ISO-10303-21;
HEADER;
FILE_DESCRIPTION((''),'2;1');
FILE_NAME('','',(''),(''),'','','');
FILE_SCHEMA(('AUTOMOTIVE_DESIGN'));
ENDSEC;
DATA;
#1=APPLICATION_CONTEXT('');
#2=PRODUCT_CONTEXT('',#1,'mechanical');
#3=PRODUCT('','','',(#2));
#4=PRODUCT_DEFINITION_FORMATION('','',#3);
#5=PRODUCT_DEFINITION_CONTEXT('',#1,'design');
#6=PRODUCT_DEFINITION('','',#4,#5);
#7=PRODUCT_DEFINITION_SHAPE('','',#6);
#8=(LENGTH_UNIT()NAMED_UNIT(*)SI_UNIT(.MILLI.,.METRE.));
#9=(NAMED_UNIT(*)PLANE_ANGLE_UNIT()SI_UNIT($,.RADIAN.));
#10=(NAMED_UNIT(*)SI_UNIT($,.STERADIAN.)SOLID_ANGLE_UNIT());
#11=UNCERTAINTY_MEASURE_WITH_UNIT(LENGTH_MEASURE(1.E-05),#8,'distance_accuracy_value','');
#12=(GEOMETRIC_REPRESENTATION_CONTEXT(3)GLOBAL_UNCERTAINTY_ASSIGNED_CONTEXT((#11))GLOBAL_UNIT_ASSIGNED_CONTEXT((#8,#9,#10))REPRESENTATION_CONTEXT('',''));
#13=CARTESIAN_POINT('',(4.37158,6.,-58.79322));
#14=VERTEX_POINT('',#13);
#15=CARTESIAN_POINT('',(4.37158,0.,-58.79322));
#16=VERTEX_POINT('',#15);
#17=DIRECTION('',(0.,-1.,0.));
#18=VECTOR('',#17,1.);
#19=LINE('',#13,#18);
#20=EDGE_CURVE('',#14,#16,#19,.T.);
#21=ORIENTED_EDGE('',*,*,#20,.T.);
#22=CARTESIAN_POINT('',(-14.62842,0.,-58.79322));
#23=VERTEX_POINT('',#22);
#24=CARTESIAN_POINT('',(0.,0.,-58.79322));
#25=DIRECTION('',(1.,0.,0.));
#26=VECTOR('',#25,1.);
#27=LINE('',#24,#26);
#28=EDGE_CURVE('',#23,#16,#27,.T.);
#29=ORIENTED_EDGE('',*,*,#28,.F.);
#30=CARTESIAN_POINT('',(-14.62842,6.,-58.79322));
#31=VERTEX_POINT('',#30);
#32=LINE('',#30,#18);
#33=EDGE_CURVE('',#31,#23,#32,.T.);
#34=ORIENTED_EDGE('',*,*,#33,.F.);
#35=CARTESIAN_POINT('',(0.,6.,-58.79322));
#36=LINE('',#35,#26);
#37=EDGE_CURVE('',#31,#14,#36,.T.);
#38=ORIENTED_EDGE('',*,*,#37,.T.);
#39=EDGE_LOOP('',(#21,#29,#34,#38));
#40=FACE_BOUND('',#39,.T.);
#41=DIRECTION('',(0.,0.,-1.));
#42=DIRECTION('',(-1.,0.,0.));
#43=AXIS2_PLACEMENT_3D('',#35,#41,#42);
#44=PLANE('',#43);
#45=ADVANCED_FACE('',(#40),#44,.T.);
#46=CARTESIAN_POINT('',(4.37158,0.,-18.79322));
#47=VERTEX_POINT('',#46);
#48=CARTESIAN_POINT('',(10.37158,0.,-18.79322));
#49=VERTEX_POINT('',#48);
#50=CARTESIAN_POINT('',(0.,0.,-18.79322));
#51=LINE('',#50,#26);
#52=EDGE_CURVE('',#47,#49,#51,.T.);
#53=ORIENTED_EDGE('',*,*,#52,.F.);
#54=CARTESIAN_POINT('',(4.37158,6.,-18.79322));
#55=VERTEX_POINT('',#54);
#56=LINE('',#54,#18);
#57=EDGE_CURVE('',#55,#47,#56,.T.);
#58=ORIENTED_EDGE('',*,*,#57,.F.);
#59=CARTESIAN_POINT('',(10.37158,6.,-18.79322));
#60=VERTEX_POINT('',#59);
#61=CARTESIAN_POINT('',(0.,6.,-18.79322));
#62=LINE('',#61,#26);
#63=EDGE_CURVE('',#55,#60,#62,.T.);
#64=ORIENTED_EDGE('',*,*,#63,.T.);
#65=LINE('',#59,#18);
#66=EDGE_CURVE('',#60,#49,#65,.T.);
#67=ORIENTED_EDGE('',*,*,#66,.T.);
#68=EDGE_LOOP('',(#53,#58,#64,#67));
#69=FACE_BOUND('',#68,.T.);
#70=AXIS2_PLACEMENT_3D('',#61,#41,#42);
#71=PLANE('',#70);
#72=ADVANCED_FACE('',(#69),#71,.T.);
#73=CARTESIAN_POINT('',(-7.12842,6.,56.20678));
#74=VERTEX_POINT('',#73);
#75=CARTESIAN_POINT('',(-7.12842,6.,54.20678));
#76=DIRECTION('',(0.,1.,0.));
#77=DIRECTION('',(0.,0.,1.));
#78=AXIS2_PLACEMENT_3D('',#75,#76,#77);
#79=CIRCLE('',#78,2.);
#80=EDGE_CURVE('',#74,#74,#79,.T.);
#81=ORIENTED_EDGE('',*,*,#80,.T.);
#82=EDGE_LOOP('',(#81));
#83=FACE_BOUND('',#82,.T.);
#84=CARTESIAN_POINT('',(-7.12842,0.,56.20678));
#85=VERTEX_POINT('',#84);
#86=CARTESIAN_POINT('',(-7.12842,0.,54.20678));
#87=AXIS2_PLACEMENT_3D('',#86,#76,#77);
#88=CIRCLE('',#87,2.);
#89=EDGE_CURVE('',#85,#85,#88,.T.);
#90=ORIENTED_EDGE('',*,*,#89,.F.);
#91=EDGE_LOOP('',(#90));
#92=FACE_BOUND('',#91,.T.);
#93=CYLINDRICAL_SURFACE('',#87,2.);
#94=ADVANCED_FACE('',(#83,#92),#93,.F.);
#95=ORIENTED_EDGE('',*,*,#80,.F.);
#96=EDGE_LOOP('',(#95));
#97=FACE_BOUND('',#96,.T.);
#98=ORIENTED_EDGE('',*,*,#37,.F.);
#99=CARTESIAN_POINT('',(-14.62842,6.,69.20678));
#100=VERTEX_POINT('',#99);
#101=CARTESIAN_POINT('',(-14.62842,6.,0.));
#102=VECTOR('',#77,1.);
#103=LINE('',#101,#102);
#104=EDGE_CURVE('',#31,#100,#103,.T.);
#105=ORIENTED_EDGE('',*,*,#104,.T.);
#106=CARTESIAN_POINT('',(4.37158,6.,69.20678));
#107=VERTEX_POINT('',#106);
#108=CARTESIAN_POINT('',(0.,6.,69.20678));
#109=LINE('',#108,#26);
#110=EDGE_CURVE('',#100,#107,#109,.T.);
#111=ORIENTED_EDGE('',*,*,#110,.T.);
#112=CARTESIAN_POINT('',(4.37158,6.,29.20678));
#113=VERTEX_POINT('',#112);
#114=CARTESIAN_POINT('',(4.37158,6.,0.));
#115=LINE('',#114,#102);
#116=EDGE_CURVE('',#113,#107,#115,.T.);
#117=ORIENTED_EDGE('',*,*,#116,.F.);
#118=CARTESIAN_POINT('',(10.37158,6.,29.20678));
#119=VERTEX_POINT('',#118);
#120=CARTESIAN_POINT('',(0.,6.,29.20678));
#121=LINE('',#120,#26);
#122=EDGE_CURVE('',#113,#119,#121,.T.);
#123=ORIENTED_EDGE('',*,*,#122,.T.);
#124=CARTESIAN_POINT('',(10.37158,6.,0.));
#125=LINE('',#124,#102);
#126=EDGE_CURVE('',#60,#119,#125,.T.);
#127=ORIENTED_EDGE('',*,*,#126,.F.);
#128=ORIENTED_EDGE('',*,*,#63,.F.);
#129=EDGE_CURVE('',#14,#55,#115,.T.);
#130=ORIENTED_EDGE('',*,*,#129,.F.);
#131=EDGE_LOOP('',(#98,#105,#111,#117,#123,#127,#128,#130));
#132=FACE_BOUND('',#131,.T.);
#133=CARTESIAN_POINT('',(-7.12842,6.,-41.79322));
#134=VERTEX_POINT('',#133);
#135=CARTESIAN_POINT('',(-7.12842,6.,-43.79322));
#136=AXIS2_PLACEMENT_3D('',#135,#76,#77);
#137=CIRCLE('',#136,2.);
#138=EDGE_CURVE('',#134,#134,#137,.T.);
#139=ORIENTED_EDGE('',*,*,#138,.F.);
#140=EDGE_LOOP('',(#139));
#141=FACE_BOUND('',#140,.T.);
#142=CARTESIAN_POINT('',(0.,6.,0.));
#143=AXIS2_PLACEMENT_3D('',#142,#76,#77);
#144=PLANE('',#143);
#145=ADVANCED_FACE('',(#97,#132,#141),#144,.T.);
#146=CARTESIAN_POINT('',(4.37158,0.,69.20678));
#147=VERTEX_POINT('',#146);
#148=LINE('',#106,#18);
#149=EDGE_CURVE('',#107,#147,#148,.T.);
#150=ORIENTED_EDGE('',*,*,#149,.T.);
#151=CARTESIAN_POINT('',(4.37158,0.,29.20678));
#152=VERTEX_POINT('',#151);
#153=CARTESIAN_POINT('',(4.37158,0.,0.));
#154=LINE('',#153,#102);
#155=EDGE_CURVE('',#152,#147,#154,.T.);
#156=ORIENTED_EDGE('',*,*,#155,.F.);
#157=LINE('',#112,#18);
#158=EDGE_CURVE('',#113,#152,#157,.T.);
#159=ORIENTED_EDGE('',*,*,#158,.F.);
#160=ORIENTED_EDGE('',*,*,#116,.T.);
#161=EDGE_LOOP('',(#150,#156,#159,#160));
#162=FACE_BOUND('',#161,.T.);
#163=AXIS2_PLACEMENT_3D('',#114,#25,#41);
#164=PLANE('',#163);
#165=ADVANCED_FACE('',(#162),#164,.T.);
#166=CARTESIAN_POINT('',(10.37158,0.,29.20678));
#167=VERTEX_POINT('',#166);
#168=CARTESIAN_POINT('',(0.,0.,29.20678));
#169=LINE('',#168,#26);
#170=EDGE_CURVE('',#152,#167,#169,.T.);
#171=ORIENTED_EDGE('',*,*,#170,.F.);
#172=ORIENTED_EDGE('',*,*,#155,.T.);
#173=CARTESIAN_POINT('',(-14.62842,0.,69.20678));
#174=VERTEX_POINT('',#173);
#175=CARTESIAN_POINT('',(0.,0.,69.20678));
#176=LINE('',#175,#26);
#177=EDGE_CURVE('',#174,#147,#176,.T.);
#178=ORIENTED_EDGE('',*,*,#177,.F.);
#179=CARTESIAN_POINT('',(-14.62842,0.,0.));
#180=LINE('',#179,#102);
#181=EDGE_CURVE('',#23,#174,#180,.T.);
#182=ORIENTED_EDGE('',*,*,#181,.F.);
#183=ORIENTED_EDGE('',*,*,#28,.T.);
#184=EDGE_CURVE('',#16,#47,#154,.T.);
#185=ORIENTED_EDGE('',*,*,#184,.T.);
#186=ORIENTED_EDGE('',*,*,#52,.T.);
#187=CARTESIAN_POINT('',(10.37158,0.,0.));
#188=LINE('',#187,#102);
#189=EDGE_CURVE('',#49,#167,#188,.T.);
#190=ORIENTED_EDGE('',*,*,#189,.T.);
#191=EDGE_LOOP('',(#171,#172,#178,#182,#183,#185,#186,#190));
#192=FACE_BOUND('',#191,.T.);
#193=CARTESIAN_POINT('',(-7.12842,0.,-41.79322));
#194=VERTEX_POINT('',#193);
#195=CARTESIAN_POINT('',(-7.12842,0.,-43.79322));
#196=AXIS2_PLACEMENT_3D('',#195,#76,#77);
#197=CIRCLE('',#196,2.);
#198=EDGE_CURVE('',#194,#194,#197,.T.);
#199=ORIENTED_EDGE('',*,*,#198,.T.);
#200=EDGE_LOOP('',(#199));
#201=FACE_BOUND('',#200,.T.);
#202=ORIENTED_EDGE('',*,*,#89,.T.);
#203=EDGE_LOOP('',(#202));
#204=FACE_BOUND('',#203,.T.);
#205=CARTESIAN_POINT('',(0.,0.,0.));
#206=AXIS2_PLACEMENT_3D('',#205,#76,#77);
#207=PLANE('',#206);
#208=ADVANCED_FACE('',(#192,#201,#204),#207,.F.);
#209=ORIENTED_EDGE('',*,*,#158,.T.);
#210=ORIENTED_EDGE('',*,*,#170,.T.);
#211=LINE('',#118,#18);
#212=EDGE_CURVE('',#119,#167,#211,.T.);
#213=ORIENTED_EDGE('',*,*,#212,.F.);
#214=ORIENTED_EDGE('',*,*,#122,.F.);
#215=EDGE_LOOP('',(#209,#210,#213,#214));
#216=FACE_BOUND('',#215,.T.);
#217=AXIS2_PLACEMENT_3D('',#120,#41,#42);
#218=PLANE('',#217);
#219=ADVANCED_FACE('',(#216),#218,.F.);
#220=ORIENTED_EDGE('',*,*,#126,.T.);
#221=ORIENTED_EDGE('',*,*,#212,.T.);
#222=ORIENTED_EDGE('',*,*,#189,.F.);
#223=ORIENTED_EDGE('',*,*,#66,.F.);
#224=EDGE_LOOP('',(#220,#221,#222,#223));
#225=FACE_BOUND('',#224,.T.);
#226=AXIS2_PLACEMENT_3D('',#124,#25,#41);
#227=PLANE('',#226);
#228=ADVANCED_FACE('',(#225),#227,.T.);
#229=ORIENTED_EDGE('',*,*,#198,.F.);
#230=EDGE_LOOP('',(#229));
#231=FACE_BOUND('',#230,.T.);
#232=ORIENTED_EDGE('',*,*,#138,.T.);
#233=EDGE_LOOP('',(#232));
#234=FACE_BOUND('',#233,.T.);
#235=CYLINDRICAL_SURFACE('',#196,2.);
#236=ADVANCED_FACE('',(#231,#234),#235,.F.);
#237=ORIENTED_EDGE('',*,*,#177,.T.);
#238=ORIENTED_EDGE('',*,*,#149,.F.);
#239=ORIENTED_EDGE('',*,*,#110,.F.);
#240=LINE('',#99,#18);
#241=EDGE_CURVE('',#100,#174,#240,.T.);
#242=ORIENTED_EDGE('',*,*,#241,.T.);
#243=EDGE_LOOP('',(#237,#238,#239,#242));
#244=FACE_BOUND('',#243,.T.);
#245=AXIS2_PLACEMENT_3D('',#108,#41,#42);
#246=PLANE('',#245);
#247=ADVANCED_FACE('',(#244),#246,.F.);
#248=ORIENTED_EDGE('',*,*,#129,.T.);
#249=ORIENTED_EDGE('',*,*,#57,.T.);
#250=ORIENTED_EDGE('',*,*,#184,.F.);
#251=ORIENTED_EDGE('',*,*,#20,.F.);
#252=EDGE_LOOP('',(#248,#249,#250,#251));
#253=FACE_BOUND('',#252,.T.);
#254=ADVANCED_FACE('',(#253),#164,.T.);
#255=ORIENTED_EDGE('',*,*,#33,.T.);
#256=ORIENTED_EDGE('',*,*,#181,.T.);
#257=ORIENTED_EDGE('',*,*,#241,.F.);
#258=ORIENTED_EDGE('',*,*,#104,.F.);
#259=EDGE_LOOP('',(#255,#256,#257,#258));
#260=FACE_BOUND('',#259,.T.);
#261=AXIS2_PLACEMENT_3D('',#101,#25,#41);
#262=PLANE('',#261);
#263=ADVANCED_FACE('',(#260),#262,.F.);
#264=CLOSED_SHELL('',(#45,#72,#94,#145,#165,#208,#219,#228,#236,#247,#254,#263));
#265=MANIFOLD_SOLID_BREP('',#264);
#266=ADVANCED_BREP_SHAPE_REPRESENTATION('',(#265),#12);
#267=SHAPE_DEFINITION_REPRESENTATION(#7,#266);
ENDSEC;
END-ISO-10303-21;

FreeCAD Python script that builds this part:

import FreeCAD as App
import Part
import Sketcher
from FreeCAD import Vector
Q = App.Units.Quantity


def add_polygon(sketch, points):
    """Adds a closed chain of lines whose ends are joined by coincident constraints."""
    first, n = sketch.GeometryCount, len(points)
    for a, b in zip(points, points[1:] + points[:1]):
        sketch.addGeometry(Part.LineSegment(App.Vector(*a, 0), App.Vector(*b, 0)), False)
    for i in range(n):
        sketch.addConstraint(Sketcher.Constraint("Coincident", first + i, 2, first + (i + 1) % n, 1))

doc = App.newDocument("Part")
body = doc.addObject("PartDesign::Body", "Body")

sketch1 = body.newObject("Sketcher::SketchObject", "Sketch")
sketch1.AttachmentSupport = (doc.getObject("XZ_Plane"), [""])
sketch1.MapMode = "FlatFace"
add_polygon(sketch1, [(4.37158, -18.79322), (4.37158, -58.79322), (-14.62842, -58.79322), (-14.62842, 69.20678), (4.37158, 69.20678), (4.37158, 29.20678), (10.37158, 29.20678), (10.37158, -18.79322)])
sketch1.addConstraint([
    Sketcher.Constraint("Vertical", 0),
    Sketcher.Constraint("Horizontal", 1),
    Sketcher.Constraint("Vertical", 2),
    Sketcher.Constraint("Horizontal", 3),
    Sketcher.Constraint("Vertical", 4),
    Sketcher.Constraint("Horizontal", 5),
    Sketcher.Constraint("Vertical", 6),
    Sketcher.Constraint("Horizontal", 7),
    Sketcher.Constraint("Vertical", 0, 2, 3, 2),
    Sketcher.Constraint("Equal", 0, 4),
    Sketcher.Constraint("DistanceX", 1, 2, 1, 1, Q("19 mm")),
    Sketcher.Constraint("DistanceX", 5, 1, 5, 2, Q("6 mm")),
    Sketcher.Constraint("DistanceY", 0, 2, 0, 1, Q("40 mm")),
    Sketcher.Constraint("DistanceY", 2, 1, 2, 2, Q("128 mm")),
    Sketcher.Constraint("DistanceX", -1, 1, 0, 2, Q("4.37158 mm")),
    Sketcher.Constraint("DistanceY", 0, 2, -1, 1, Q("58.79322 mm")),
])
pad1 = body.newObject("PartDesign::Pad", "Pad")
pad1.Profile = sketch1
pad1.Length = 6
pad1.Reversed = True

sketch2 = body.newObject("Sketcher::SketchObject", "Sketch001")
sketch2.AttachmentSupport = (doc.getObject("XZ_Plane"), [""])
sketch2.MapMode = "FlatFace"
sketch2.AttachmentOffset = App.Placement(Vector(0, 0, -6), App.Rotation())
sketch2.addGeometry([
    Part.Circle(Vector(-7.12842, 54.20678, 0), Vector(0, 0, 1), 2),
    Part.Circle(Vector(-7.12842, -43.79322, 0), Vector(0, 0, 1), 2),
], False)
sketch2.addConstraint([
    Sketcher.Constraint("Equal", 0, 1),
    Sketcher.Constraint("Vertical", 0, 3, 1, 3),
    Sketcher.Constraint("Diameter", 0, Q("4 mm")),
    Sketcher.Constraint("DistanceY", 1, 3, 0, 3, Q("98 mm")),
    Sketcher.Constraint("DistanceX", 0, 3, -1, 1, Q("7.12842 mm")),
    Sketcher.Constraint("DistanceY", -1, 1, 0, 3, Q("54.20678 mm")),
])
pocket1 = body.newObject("PartDesign::Pocket", "Pocket")
pocket1.Profile = sketch2
pocket1.Type = "ThroughAll"
pocket1.Reversed = True

doc.recompute()
